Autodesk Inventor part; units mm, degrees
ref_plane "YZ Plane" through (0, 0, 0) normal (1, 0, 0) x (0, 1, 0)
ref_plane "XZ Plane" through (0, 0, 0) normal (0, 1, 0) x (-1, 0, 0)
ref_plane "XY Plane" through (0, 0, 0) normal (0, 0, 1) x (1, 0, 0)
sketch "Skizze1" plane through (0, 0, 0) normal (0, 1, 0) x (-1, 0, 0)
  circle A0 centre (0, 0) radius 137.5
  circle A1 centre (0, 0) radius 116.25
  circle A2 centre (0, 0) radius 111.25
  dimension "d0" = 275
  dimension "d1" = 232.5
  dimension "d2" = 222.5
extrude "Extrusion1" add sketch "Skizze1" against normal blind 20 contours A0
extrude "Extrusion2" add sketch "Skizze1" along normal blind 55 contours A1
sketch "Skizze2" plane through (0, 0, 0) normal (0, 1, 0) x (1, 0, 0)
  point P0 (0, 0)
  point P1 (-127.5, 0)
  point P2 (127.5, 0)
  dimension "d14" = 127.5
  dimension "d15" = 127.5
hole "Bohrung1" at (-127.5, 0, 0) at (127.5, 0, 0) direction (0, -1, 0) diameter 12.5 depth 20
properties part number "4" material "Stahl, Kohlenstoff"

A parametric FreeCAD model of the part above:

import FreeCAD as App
import Part
import Sketcher

doc = App.newDocument("Part")
body = doc.addObject("PartDesign::Body", "Body")
body.AllowCompound = True

# Sketch on XZ plane
sketch1 = doc.addObject("Sketcher::SketchObject", "Sketch")
body.addObject(sketch1)
sketch1.AttachmentSupport = (doc.XZ_Plane, [""])
sketch1.MapMode = "FlatFace"
sketch1.addGeometry([
    Part.Circle(App.Vector(0, 0, 0), App.Vector(0, 0, 1), 138),
    Part.Circle(App.Vector(0, 0, 0), App.Vector(0, 0, 1), 116),
], False)
sketch1.addConstraint([
    Sketcher.Constraint("Coincident", 0, 3, -1, 1),
    Sketcher.Constraint("Coincident", 1, 3, -1, 1),
    Sketcher.Constraint("Diameter", 0, 275.0),
    Sketcher.Constraint("Diameter", 1, 232.5),
])
pad1 = doc.addObject("PartDesign::Pad", "Pad")
body.addObject(pad1)
pad1.Profile = sketch1
pad1.Length = 20

# Sketch on XZ plane
sketch2 = doc.addObject("Sketcher::SketchObject", "Sketch001")
body.addObject(sketch2)
sketch2.AttachmentSupport = (doc.XZ_Plane, [""])
sketch2.MapMode = "FlatFace"
sketch2.addGeometry([
    Part.Circle(App.Vector(0, 0, 0), App.Vector(0, 0, 1), 116),
    Part.Circle(App.Vector(0, 0, 0), App.Vector(0, 0, 1), 111),
], False)
sketch2.addConstraint([
    Sketcher.Constraint("Coincident", 0, 3, -1, 1),
    Sketcher.Constraint("Coincident", 1, 3, -1, 1),
    Sketcher.Constraint("Diameter", 0, 232.5),
    Sketcher.Constraint("Diameter", 1, 222.5),
])
pad2 = doc.addObject("PartDesign::Pad", "Pad001")
body.addObject(pad2)
pad2.Profile = sketch2
pad2.Length = 55
pad2.Reversed = True

# Sketch on XZ plane
sketch3 = doc.addObject("Sketcher::SketchObject", "Sketch002")
body.addObject(sketch3)
sketch3.AttachmentSupport = (doc.XZ_Plane, [""])
sketch3.MapMode = "FlatFace"
sketch3.addGeometry([
    Part.Circle(App.Vector(-128, 0, 0), App.Vector(0, 0, 1), 6),
    Part.Circle(App.Vector(128, 0, 0), App.Vector(0, 0, 1), 6),
], False)
sketch3.addConstraint([
    Sketcher.Constraint("Equal", 0, 1),
    Sketcher.Constraint("Symmetric", 0, 3, 1, 3, -1, 1),
    Sketcher.Constraint("PointOnObject", 0, 3, -1),
    Sketcher.Constraint("Diameter", 0, 12.5),
    Sketcher.Constraint("DistanceX", 0, 3, 1, 3, 255.0),
])
doc.recompute()
hole = doc.addObject("PartDesign::Hole", "Hole")
body.addObject(hole)
hole.Profile = sketch3
hole.ThreadType = "None"
hole.Diameter = 12.5
hole.DepthType = "Dimension"
hole.Depth = 20
hole.DrillPoint = "Flat"
hole.Reversed = True

doc.recompute()
